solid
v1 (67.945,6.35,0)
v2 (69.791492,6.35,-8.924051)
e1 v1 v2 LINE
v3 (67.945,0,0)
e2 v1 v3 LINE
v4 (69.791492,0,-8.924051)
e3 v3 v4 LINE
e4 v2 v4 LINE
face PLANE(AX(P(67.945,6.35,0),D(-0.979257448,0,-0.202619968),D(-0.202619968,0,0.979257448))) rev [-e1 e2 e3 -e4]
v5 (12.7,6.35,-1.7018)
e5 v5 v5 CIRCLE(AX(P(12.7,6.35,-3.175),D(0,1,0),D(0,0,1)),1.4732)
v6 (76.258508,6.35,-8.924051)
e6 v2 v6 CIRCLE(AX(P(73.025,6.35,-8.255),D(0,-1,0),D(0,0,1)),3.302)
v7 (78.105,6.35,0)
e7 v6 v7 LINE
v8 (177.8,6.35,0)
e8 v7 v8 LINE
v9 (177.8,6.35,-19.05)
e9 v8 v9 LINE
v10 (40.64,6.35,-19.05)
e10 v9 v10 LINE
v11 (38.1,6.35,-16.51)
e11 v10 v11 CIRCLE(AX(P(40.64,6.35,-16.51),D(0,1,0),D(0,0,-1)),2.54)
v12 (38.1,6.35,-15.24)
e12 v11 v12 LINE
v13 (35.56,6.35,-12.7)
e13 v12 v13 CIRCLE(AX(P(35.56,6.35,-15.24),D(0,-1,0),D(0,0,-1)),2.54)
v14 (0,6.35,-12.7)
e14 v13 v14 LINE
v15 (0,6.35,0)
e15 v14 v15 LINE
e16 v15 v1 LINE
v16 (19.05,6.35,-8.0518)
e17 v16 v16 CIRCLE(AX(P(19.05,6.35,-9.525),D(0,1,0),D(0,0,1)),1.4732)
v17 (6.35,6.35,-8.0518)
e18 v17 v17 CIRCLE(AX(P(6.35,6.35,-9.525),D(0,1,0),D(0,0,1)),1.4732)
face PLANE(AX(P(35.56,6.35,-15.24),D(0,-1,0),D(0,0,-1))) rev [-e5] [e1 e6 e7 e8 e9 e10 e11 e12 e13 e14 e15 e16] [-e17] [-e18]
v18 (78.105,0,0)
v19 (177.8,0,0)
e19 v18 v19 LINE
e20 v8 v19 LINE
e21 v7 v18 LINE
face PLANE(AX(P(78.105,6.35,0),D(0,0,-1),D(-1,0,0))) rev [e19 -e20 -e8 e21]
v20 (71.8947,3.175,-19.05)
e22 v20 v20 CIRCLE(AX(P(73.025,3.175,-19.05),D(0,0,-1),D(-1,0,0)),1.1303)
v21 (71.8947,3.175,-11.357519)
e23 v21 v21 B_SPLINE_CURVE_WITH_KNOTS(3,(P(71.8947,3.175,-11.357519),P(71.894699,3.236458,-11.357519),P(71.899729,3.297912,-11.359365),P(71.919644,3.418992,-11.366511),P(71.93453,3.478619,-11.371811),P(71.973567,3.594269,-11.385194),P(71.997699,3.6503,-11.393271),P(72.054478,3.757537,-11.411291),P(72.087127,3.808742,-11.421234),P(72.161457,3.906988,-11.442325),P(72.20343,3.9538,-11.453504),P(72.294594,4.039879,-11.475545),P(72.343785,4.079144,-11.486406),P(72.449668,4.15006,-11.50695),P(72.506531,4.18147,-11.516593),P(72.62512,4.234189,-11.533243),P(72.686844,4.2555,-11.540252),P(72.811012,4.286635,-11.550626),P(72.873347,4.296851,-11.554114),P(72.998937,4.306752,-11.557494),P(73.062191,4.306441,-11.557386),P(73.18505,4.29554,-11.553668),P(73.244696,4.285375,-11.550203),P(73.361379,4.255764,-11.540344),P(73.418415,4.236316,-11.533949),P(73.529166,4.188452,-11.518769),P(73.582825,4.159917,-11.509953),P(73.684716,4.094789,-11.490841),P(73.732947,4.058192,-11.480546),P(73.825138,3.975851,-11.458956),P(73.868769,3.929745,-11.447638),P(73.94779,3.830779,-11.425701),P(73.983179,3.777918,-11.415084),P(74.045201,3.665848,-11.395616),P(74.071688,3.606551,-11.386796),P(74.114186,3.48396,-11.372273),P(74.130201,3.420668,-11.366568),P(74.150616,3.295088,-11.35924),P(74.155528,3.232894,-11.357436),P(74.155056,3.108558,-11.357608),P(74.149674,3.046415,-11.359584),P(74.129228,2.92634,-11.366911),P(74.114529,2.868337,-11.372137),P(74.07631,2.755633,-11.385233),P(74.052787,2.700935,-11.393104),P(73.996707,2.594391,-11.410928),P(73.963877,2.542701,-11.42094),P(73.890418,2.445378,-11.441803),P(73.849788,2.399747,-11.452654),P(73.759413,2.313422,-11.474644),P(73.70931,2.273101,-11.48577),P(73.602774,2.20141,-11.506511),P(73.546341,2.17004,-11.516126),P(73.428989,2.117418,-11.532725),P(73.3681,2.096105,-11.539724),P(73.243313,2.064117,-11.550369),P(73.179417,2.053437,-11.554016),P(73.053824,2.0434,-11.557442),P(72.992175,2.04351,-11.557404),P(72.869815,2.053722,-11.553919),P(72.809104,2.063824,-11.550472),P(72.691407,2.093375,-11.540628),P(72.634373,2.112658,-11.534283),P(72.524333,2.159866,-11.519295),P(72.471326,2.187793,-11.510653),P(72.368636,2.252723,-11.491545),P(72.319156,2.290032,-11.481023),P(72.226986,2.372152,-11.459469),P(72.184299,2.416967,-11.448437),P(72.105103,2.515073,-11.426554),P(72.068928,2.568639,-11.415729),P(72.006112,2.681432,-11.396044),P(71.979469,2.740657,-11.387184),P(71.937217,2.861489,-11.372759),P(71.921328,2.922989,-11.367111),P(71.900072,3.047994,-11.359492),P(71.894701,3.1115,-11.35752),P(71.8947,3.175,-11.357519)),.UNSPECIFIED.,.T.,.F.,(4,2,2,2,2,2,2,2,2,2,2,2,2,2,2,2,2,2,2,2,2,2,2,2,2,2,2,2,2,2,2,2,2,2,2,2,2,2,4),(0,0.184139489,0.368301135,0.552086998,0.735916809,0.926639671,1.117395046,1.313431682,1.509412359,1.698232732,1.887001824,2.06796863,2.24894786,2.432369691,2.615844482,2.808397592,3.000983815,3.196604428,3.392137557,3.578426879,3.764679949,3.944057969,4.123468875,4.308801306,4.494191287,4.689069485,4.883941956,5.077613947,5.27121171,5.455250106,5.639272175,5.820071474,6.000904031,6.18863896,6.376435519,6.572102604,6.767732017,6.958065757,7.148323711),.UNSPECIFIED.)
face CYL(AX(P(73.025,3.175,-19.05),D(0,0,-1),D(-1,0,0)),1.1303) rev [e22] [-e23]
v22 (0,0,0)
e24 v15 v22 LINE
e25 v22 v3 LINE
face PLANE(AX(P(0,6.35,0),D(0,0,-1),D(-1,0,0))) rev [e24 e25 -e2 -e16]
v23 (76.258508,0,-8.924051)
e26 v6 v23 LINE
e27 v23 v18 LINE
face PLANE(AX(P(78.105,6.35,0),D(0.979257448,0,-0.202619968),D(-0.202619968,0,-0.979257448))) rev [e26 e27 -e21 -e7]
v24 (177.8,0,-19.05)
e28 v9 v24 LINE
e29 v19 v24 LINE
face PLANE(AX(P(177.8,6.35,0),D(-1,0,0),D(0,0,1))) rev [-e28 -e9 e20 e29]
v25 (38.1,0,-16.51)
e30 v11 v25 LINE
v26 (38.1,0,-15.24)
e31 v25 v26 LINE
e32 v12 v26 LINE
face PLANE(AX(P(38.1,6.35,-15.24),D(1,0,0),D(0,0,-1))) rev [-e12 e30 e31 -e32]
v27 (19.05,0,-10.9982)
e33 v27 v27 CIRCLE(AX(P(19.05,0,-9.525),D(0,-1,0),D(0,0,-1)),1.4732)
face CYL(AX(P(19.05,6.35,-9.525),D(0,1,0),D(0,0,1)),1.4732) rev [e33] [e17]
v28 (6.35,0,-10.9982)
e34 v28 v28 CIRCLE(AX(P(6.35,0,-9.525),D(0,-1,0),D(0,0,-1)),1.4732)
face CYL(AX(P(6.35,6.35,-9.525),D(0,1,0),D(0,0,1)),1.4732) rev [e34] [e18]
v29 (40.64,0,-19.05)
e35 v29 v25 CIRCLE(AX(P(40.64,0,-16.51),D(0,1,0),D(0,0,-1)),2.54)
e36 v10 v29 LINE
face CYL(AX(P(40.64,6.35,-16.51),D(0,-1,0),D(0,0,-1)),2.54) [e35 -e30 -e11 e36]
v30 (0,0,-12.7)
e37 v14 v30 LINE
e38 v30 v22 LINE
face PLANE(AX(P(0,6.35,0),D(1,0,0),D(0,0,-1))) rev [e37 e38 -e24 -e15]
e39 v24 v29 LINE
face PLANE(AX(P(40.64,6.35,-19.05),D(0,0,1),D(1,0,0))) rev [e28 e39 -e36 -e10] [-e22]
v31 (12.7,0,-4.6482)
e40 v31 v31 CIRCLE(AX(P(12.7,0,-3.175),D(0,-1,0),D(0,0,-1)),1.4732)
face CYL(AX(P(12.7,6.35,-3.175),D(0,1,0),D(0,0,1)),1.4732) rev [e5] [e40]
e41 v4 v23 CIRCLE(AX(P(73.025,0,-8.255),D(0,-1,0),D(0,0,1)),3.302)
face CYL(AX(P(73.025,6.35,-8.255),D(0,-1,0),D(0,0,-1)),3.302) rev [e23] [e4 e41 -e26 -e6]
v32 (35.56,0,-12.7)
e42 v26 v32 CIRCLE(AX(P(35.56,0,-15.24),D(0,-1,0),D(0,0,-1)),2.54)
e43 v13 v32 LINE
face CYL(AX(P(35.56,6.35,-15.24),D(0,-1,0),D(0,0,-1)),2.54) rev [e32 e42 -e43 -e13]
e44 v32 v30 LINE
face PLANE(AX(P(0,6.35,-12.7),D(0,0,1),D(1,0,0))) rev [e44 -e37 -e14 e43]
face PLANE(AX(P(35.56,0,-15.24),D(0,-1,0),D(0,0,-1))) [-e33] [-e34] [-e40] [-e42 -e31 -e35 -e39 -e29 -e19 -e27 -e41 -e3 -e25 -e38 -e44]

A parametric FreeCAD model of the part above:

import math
import FreeCAD as App
import Part
import Sketcher
from FreeCAD import Vector
Q = App.Units.Quantity

doc = App.newDocument("Part")
params = doc.addObject("Spreadsheet::Sheet", "Params")
for row, (alias, value) in enumerate([
    ("sketch1_radius", "0.1 in"),
    ("sketch1_radius2", "0.13 in"),
    ("sketch1_width", "5.4 in"),
    ("sketch1_width2", "1.4 in"),
    ("sketch1_height", "0.5 in"),
    ("pad1_length", "0.25 in"),
    ("sketch2_diameter", "0.116 in"),
    ("hole_diameter", "0.116 in"),
    ("hole_depth", "0.3 in"),
    ("sketch3_diameter", "0.089 in"),
    ("hole2_diameter", "0.089 in"),
], start=1):
    params.set(f"A{row}", alias)
    params.set(f"B{row}", "=" + value)
    params.setAlias(f"B{row}", alias)

body = doc.addObject("PartDesign::Body", "Body")

# Sketch on XZ plane
sketch1 = doc.addObject("Sketcher::SketchObject", "Sketch")
body.addObject(sketch1)
sketch1.AttachmentSupport = (doc.XZ_Plane, [""])
sketch1.MapMode = "FlatFace"
sketch1.addGeometry([
    Part.LineSegment(Vector(0, 0, 0), Vector(67.9, 0, 0)),  # 0
    Part.LineSegment(Vector(67.9, 0, 0), Vector(69.8, -8.9, 0)),  # 1
    Part.ArcOfCircle(Part.Circle(Vector(73, -8.3, 0), Vector(0, 0, 1), 3.3), math.radians(-168), math.radians(-12)),  # 2
    Part.LineSegment(Vector(76.3, -8.9, 0), Vector(78.1, 0, 0)),  # 3
    Part.LineSegment(Vector(78.1, 0, 0), Vector(177.8, 0, 0)),  # 4
    Part.LineSegment(Vector(177.8, 0, 0), Vector(177.8, -19.1, 0)),  # 5
    Part.LineSegment(Vector(177.8, -19.1, 0), Vector(40.6, -19.1, 0)),  # 6
    Part.ArcOfCircle(Part.Circle(Vector(40.6, -16.5, 0), Vector(0, 0, 1), 2.5), math.radians(-180), math.radians(-90)),  # 7
    Part.LineSegment(Vector(38.1, -16.5, 0), Vector(38.1, -15.2, 0)),  # 8
    Part.ArcOfCircle(Part.Circle(Vector(35.6, -15.2, 0), Vector(0, 0, 1), 2.5), math.radians(0), math.radians(90)),  # 9
    Part.LineSegment(Vector(35.6, -12.7, 0), Vector(0, -12.7, 0)),  # 10
    Part.LineSegment(Vector(0, -12.7, 0), Vector(0, 0, 0)),  # 11
], False)
sketch1.addConstraint([
    Sketcher.Constraint("Coincident", 0, 2, 1, 1),
    Sketcher.Constraint("Tangent", 1, 2, 2, 1),
    Sketcher.Constraint("Tangent", 2, 2, 3, 1),
    Sketcher.Constraint("Coincident", 3, 2, 4, 1),
    Sketcher.Constraint("Coincident", 4, 2, 5, 1),
    Sketcher.Constraint("Coincident", 5, 2, 6, 1),
    Sketcher.Constraint("Tangent", 6, 2, 7, 2),
    Sketcher.Constraint("Tangent", 7, 1, 8, 1),
    Sketcher.Constraint("Tangent", 8, 2, 9, 1),
    Sketcher.Constraint("Tangent", 9, 2, 10, 1),
    Sketcher.Constraint("Coincident", 10, 2, 11, 1),
    Sketcher.Constraint("Coincident", 11, 2, 0, 1),
    Sketcher.Constraint("Horizontal", 0),
    Sketcher.Constraint("Horizontal", 4),
    Sketcher.Constraint("Vertical", 5),
    Sketcher.Constraint("Horizontal", 6),
    Sketcher.Constraint("Vertical", 8),
    Sketcher.Constraint("Horizontal", 10),
    Sketcher.Constraint("Vertical", 11),
    Sketcher.Constraint("Coincident", 11, 2, -1, 1),
    Sketcher.Constraint("Equal", 7, 9),
    Sketcher.Constraint("PointOnObject", 3, 2, -1),
    Sketcher.Constraint("Horizontal", 1, 2, 2, 2),
    Sketcher.Constraint("Radius", 7, Q("0.1 in")),
    Sketcher.Constraint("Radius", 2, Q("0.13 in")),
    Sketcher.Constraint("DistanceX", 6, 2, 6, 1, Q("5.4 in")),
    Sketcher.Constraint("DistanceX", 10, 2, 10, 1, Q("1.4 in")),
    Sketcher.Constraint("DistanceY", 11, 1, 11, 2, Q("0.5 in")),
    Sketcher.Constraint("DistanceY", 5, 2, 5, 1, Q("0.75 in")),
    Sketcher.Constraint("DistanceX", 0, 2, 2, 3, Q("0.2 in")),
    Sketcher.Constraint("DistanceX", 0, 1, 0, 2, Q("2.675 in")),
    Sketcher.Constraint("DistanceY", 2, 3, -1, 1, Q("0.325 in")),
])
sketch1.setExpression("Constraints[23]", "Params.sketch1_radius")
sketch1.setExpression("Constraints[24]", "Params.sketch1_radius2")
sketch1.setExpression("Constraints[25]", "Params.sketch1_width")
sketch1.setExpression("Constraints[26]", "Params.sketch1_width2")
sketch1.setExpression("Constraints[27]", "Params.sketch1_height")
pad1 = doc.addObject("PartDesign::Pad", "Pad")
body.addObject(pad1)
pad1.Profile = sketch1
pad1.setExpression("Length", "Params.pad1_length")
pad1.Reversed = True

# Sketch on XZ plane
sketch2 = doc.addObject("Sketcher::SketchObject", "Sketch001")
body.addObject(sketch2)
sketch2.AttachmentSupport = (doc.XZ_Plane, [""])
sketch2.MapMode = "FlatFace"
sketch2.AttachmentOffset = App.Placement(Vector(0, 0, -0.25 * 25.4), App.Rotation())
sketch2.addGeometry([
    Part.Circle(Vector(6.3, -9.5, 0), Vector(0, 0, 1), 1.5),
    Part.Circle(Vector(19.1, -9.5, 0), Vector(0, 0, 1), 1.5),
    Part.Circle(Vector(12.7, -3.2, 0), Vector(0, 0, 1), 1.5),
], False)
sketch2.addConstraint([
    Sketcher.Constraint("Equal", 0, 1),
    Sketcher.Constraint("Equal", 1, 2),
    Sketcher.Constraint("Horizontal", 0, 3, 1, 3),
    Sketcher.Constraint("Diameter", 0, Q("0.116 in")),
    Sketcher.Constraint("DistanceX", -1, 1, 2, 3, Q("0.5 in")),
    Sketcher.Constraint("DistanceX", 0, 3, 1, 3, Q("0.5 in")),
    Sketcher.Constraint("DistanceX", -1, 1, 0, 3, Q("0.25 in")),
    Sketcher.Constraint("DistanceY", 0, 3, 2, 3, Q("0.25 in")),
    Sketcher.Constraint("DistanceY", 0, 3, -1, 1, Q("0.375 in")),
])
sketch2.setExpression("Constraints[3]", "Params.sketch2_diameter")
doc.recompute()
hole = doc.addObject("PartDesign::Hole", "Hole")
body.addObject(hole)
hole.Profile = sketch2
hole.ThreadType = "None"
hole.setExpression("Diameter", "Params.hole_diameter")
hole.DepthType = "Dimension"
hole.setExpression("Depth", "Params.hole_depth")
hole.DrillPoint = "Angled"
hole.DrillPointAngle = 118
hole.Reversed = True

# Sketch on XY plane
sketch3 = doc.addObject("Sketcher::SketchObject", "Sketch002")
body.addObject(sketch3)
sketch3.AttachmentSupport = (doc.XY_Plane, [""])
sketch3.MapMode = "FlatFace"
sketch3.AttachmentOffset = App.Placement(Vector(0, 0, -0.75 * 25.4), App.Rotation())
sketch3.addGeometry(Part.Circle(Vector(73, 3.2, 0), Vector(0, 0, 1), 1.1), False)
sketch3.addConstraint([
    Sketcher.Constraint("Diameter", 0, Q("0.089 in")),
    Sketcher.Constraint("DistanceX", -1, 1, 0, 3, Q("2.875 in")),
    Sketcher.Constraint("DistanceY", -1, 1, 0, 3, Q("0.125 in")),
])
sketch3.setExpression("Constraints[0]", "Params.sketch3_diameter")
doc.recompute()
hole2 = doc.addObject("PartDesign::Hole", "Hole001")
body.addObject(hole2)
hole2.Profile = sketch3
hole2.ThreadType = "None"
hole2.setExpression("Diameter", "Params.hole2_diameter")
hole2.DepthType = "ThroughAll"
hole2.Reversed = True

doc.recompute()
